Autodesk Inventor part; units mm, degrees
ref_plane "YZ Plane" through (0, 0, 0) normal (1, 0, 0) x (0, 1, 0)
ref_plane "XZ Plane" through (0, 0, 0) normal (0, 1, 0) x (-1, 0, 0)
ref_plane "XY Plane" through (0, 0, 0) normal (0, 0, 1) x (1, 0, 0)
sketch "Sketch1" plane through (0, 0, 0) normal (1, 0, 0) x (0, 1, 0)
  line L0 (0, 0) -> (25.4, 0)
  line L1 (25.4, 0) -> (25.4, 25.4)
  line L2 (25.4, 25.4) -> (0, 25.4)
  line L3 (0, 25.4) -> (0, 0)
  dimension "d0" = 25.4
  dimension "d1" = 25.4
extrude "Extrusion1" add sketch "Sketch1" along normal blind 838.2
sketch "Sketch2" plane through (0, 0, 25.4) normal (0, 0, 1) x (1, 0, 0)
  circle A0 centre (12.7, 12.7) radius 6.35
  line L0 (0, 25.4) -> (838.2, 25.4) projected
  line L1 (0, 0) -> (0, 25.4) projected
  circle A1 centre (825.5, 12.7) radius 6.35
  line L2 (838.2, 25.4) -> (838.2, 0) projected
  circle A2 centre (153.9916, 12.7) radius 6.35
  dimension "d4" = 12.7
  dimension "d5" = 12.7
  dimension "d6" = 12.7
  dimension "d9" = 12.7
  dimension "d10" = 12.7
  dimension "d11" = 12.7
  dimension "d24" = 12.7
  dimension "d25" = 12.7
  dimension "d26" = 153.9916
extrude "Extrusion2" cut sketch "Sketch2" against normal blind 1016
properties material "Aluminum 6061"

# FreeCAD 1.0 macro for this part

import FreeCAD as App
import Part
import Sketcher
Q = App.Units.Quantity

doc = App.newDocument("Part")
body = doc.addObject("PartDesign::Body", "Body")

# Sketch on YZ plane
sketch1 = body.newObject("Sketcher::SketchObject", "Sketch")
sketch1.AttachmentSupport = (doc.getObject("YZ_Plane"), [""])
sketch1.MapMode = "FlatFace"
sketch1.addGeometry([
    Part.LineSegment(App.Vector(0, 25, 0), App.Vector(0, 0, 0)),
    Part.LineSegment(App.Vector(0, 0, 0), App.Vector(25, 0, 0)),
    Part.LineSegment(App.Vector(25, 0, 0), App.Vector(25, 25, 0)),
    Part.LineSegment(App.Vector(25, 25, 0), App.Vector(0, 25, 0)),
], False)
sketch1.addConstraint([
    Sketcher.Constraint("Coincident", 0, 2, 1, 1),
    Sketcher.Constraint("Coincident", 1, 2, 2, 1),
    Sketcher.Constraint("Coincident", 2, 2, 3, 1),
    Sketcher.Constraint("Coincident", 3, 2, 0, 1),
    Sketcher.Constraint("Vertical", 0),
    Sketcher.Constraint("Horizontal", 1),
    Sketcher.Constraint("Vertical", 2),
    Sketcher.Constraint("Horizontal", 3),
    Sketcher.Constraint("Coincident", 0, 2, -1, 1),
    Sketcher.Constraint("Equal", 3, 0),
    Sketcher.Constraint("DistanceX", 1, 1, 1, 2, Q("1 in")),
])
pad1 = body.newObject("PartDesign::Pad", "Pad")
pad1.Profile = sketch1
pad1.Length = Q("33 in")

# Sketch on XY plane
sketch2 = body.newObject("Sketcher::SketchObject", "Sketch001")
sketch2.AttachmentSupport = (doc.getObject("XY_Plane"), [""])
sketch2.MapMode = "FlatFace"
sketch2.AttachmentOffset = App.Placement(App.Vector(0, 0, 1 * 25.4), App.Rotation())
sketch2.addGeometry([
    Part.Circle(App.Vector(13, 13, 0), App.Vector(0, 0, 1), 6),
    Part.Circle(App.Vector(826, 13, 0), App.Vector(0, 0, 1), 6),
    Part.Circle(App.Vector(154, 13, 0), App.Vector(0, 0, 1), 6),
], False)
sketch2.addConstraint([
    Sketcher.Constraint("Equal", 0, 1),
    Sketcher.Constraint("Equal", 1, 2),
    Sketcher.Constraint("Horizontal", 0, 3, 1, 3),
    Sketcher.Constraint("Horizontal", 1, 3, 2, 3),
    Sketcher.Constraint("Diameter", 0, Q("0.5 in")),
    Sketcher.Constraint("DistanceX", -1, 1, 0, 3, Q("0.5 in")),
    Sketcher.Constraint("DistanceY", -1, 1, 0, 3, Q("0.5 in")),
    Sketcher.Constraint("DistanceX", 0, 3, 1, 3, Q("32 in")),
    Sketcher.Constraint("DistanceX", -1, 1, 2, 3, Q("153.9916 mm")),
])
pocket1 = body.newObject("PartDesign::Pocket", "Pocket")
pocket1.Profile = sketch2
pocket1.Length = Q("40 in")

doc.recompute()
